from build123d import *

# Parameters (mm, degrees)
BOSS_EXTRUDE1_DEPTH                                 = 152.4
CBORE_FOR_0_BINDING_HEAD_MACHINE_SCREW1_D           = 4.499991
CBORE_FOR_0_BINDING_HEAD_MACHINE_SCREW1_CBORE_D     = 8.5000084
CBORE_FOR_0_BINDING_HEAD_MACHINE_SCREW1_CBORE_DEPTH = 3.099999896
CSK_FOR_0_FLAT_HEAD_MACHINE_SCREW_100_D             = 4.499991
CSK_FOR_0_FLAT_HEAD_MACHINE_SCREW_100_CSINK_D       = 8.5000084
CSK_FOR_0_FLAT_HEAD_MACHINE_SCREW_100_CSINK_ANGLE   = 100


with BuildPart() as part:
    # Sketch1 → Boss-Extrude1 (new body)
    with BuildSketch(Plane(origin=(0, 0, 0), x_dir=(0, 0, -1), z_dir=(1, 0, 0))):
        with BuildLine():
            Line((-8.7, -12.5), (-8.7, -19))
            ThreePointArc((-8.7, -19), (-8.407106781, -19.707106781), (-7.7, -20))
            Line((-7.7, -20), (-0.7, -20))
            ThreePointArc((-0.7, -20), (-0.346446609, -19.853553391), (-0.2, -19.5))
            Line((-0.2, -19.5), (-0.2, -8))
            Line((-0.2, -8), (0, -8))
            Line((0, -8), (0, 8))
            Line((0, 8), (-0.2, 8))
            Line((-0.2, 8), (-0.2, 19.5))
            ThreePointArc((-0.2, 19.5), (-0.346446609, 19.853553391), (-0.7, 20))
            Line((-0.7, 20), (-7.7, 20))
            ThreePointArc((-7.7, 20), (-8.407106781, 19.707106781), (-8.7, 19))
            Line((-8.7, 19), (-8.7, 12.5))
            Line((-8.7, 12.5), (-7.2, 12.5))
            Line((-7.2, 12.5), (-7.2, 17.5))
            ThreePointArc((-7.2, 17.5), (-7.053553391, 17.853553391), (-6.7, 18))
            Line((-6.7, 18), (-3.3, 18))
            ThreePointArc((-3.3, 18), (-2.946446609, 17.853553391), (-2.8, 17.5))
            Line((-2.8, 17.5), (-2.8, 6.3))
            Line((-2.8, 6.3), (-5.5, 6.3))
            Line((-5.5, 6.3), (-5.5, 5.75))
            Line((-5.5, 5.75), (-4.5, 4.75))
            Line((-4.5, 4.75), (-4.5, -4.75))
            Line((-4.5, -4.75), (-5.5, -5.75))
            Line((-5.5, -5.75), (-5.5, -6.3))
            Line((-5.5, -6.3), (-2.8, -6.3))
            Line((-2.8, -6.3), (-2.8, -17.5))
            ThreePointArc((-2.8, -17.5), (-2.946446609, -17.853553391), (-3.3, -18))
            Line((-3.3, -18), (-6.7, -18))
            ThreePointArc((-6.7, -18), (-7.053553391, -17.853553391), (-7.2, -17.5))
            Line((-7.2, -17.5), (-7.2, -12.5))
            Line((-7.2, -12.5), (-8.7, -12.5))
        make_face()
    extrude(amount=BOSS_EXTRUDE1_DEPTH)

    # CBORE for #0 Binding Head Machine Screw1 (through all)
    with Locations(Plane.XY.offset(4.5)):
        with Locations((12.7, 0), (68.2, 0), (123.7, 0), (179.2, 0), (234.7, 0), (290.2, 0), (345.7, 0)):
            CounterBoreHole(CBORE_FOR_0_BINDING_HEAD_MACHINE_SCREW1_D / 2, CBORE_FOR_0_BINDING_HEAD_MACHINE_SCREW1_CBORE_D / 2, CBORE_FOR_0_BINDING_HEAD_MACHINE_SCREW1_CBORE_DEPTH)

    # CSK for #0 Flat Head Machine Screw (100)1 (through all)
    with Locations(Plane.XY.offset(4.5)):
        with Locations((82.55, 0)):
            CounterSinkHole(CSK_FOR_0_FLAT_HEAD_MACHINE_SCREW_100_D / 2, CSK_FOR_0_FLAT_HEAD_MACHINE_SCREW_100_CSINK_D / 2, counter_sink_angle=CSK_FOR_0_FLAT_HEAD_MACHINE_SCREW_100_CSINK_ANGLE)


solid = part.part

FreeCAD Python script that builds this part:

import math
import FreeCAD as App
import Part
import Sketcher
from FreeCAD import Vector
Q = App.Units.Quantity

doc = App.newDocument("Part")
params = doc.addObject("Spreadsheet::Sheet", "Params")
for row, (alias, value) in enumerate([
    ("sketch1_radius", "1 mm"),
    ("sketch1_radius2", "0.5 mm"),
    ("sketch1_width", "16 mm"),
    ("sketch1_width2", "5 mm"),
    ("sketch1_height", "7 mm"),
    ("pad1_length", "152.4 mm"),
    ("hole_diameter", "4.499991 mm"),
    ("hole_cbore_diameter", "8.500008 mm"),
    ("hole_cbore_depth", "3.1 mm"),
    ("hole2_diameter", "4.499991 mm"),
    ("hole2_csink_diameter", "8.500008 mm"),
], start=1):
    params.set(f"A{row}", alias)
    params.set(f"B{row}", "=" + value)
    params.setAlias(f"B{row}", alias)

body = doc.addObject("PartDesign::Body", "Body")

sketch1 = body.newObject("Sketcher::SketchObject", "Sketch")
sketch1.AttachmentSupport = (doc.getObject("YZ_Plane"), [""])
sketch1.MapMode = "FlatFace"
sketch1.addGeometry([
    Part.LineSegment(Vector(-12.5, 8.7, 0), Vector(-19, 8.7, 0)),
    Part.ArcOfCircle(Part.Circle(Vector(-19, 7.7, 0), Vector(0, 0, 1), 1), math.radians(90), math.radians(180)),
    Part.LineSegment(Vector(-20, 7.7, 0), Vector(-20, 0.7, 0)),
    Part.ArcOfCircle(Part.Circle(Vector(-19.5, 0.7, 0), Vector(0, 0, 1), 0.5), math.radians(180), math.radians(270)),
    Part.LineSegment(Vector(-19.5, 0.2, 0), Vector(-8, 0.2, 0)),
    Part.LineSegment(Vector(-8, 0.2, 0), Vector(-8, 0, 0)),
    Part.LineSegment(Vector(-8, 0, 0), Vector(8, 0, 0)),
    Part.LineSegment(Vector(8, 0, 0), Vector(8, 0.2, 0)),
    Part.LineSegment(Vector(8, 0.2, 0), Vector(19.5, 0.2, 0)),
    Part.ArcOfCircle(Part.Circle(Vector(19.5, 0.7, 0), Vector(0, 0, 1), 0.5), math.radians(-90), math.radians(0)),
    Part.LineSegment(Vector(20, 0.7, 0), Vector(20, 7.7, 0)),
    Part.ArcOfCircle(Part.Circle(Vector(19, 7.7, 0), Vector(0, 0, 1), 1), math.radians(0), math.radians(90)),
    Part.LineSegment(Vector(19, 8.7, 0), Vector(12.5, 8.7, 0)),
    Part.LineSegment(Vector(12.5, 8.7, 0), Vector(12.5, 7.2, 0)),
    Part.LineSegment(Vector(12.5, 7.2, 0), Vector(17.5, 7.2, 0)),
    Part.ArcOfCircle(Part.Circle(Vector(17.5, 6.7, 0), Vector(0, 0, 1), 0.5), math.radians(0), math.radians(90)),
    Part.LineSegment(Vector(18, 6.7, 0), Vector(18, 3.3, 0)),
    Part.ArcOfCircle(Part.Circle(Vector(17.5, 3.3, 0), Vector(0, 0, 1), 0.5), math.radians(-90), math.radians(0)),
    Part.LineSegment(Vector(17.5, 2.8, 0), Vector(6.3, 2.8, 0)),
    Part.LineSegment(Vector(6.3, 2.8, 0), Vector(6.3, 5.5, 0)),
    Part.LineSegment(Vector(6.3, 5.5, 0), Vector(5.75, 5.5, 0)),
    Part.LineSegment(Vector(5.75, 5.5, 0), Vector(4.75, 4.5, 0)),
    Part.LineSegment(Vector(4.75, 4.5, 0), Vector(-4.75, 4.5, 0)),
    Part.LineSegment(Vector(-4.75, 4.5, 0), Vector(-5.75, 5.5, 0)),
    Part.LineSegment(Vector(-5.75, 5.5, 0), Vector(-6.3, 5.5, 0)),
    Part.LineSegment(Vector(-6.3, 5.5, 0), Vector(-6.3, 2.8, 0)),
    Part.LineSegment(Vector(-6.3, 2.8, 0), Vector(-17.5, 2.8, 0)),
    Part.ArcOfCircle(Part.Circle(Vector(-17.5, 3.3, 0), Vector(0, 0, 1), 0.5), math.radians(180), math.radians(270)),
    Part.LineSegment(Vector(-18, 3.3, 0), Vector(-18, 6.7, 0)),
    Part.ArcOfCircle(Part.Circle(Vector(-17.5, 6.7, 0), Vector(0, 0, 1), 0.5), math.radians(90), math.radians(180)),
    Part.LineSegment(Vector(-17.5, 7.2, 0), Vector(-12.5, 7.2, 0)),
    Part.LineSegment(Vector(-12.5, 7.2, 0), Vector(-12.5, 8.7, 0)),
], False)
sketch1.addConstraint([
    Sketcher.Constraint("Tangent", 0, 2, 1, 1),
    Sketcher.Constraint("Tangent", 1, 2, 2, 1),
    Sketcher.Constraint("Tangent", 2, 2, 3, 1),
    Sketcher.Constraint("Tangent", 3, 2, 4, 1),
    Sketcher.Constraint("Coincident", 4, 2, 5, 1),
    Sketcher.Constraint("Coincident", 5, 2, 6, 1),
    Sketcher.Constraint("Coincident", 6, 2, 7, 1),
    Sketcher.Constraint("Coincident", 7, 2, 8, 1),
    Sketcher.Constraint("Tangent", 8, 2, 9, 1),
    Sketcher.Constraint("Tangent", 9, 2, 10, 1),
    Sketcher.Constraint("Tangent", 10, 2, 11, 1),
    Sketcher.Constraint("Tangent", 11, 2, 12, 1),
    Sketcher.Constraint("Coincident", 12, 2, 13, 1),
    Sketcher.Constraint("Coincident", 13, 2, 14, 1),
    Sketcher.Constraint("Tangent", 14, 2, 15, 2),
    Sketcher.Constraint("Tangent", 15, 1, 16, 1),
    Sketcher.Constraint("Tangent", 16, 2, 17, 2),
    Sketcher.Constraint("Tangent", 17, 1, 18, 1),
    Sketcher.Constraint("Coincident", 18, 2, 19, 1),
    Sketcher.Constraint("Coincident", 19, 2, 20, 1),
    Sketcher.Constraint("Coincident", 20, 2, 21, 1),
    Sketcher.Constraint("Coincident", 21, 2, 22, 1),
    Sketcher.Constraint("Coincident", 22, 2, 23, 1),
    Sketcher.Constraint("Coincident", 23, 2, 24, 1),
    Sketcher.Constraint("Coincident", 24, 2, 25, 1),
    Sketcher.Constraint("Coincident", 25, 2, 26, 1),
    Sketcher.Constraint("Tangent", 26, 2, 27, 2),
    Sketcher.Constraint("Tangent", 27, 1, 28, 1),
    Sketcher.Constraint("Tangent", 28, 2, 29, 2),
    Sketcher.Constraint("Tangent", 29, 1, 30, 1),
    Sketcher.Constraint("Coincident", 30, 2, 31, 1),
    Sketcher.Constraint("Coincident", 31, 2, 0, 1),
    Sketcher.Constraint("Horizontal", 0),
    Sketcher.Constraint("Vertical", 2),
    Sketcher.Constraint("Horizontal", 4),
    Sketcher.Constraint("Vertical", 5),
    Sketcher.Constraint("Horizontal", 6),
    Sketcher.Constraint("Vertical", 7),
    Sketcher.Constraint("Horizontal", 8),
    Sketcher.Constraint("Vertical", 10),
    Sketcher.Constraint("Horizontal", 12),
    Sketcher.Constraint("Vertical", 13),
    Sketcher.Constraint("Horizontal", 14),
    Sketcher.Constraint("Vertical", 16),
    Sketcher.Constraint("Horizontal", 18),
    Sketcher.Constraint("Vertical", 19),
    Sketcher.Constraint("Horizontal", 20),
    Sketcher.Constraint("Horizontal", 22),
    Sketcher.Constraint("Horizontal", 24),
    Sketcher.Constraint("Vertical", 25),
    Sketcher.Constraint("Horizontal", 26),
    Sketcher.Constraint("Vertical", 28),
    Sketcher.Constraint("Horizontal", 30),
    Sketcher.Constraint("Vertical", 31),
    Sketcher.Constraint("Equal", 3, 9),
    Sketcher.Constraint("Equal", 1, 11),
    Sketcher.Constraint("Equal", 9, 15),
    Sketcher.Constraint("Equal", 15, 17),
    Sketcher.Constraint("Equal", 17, 27),
    Sketcher.Constraint("Equal", 27, 29),
    Sketcher.Constraint("Symmetric", 5, 2, 6, 2, -1, 1),
    Sketcher.Constraint("Symmetric", 3, 3, 9, 3, -2),
    Sketcher.Constraint("Symmetric", 17, 3, 27, 3, -2),
    Sketcher.Constraint("Symmetric", 20, 2, 23, 2, -2),
    Sketcher.Constraint("Symmetric", 13, 2, 30, 2, -2),
    Sketcher.Constraint("Perpendicular", 21, 23),
    Sketcher.Constraint("Horizontal", 1, 3, 11, 3),
    Sketcher.Constraint("Equal", 20, 24),
    Sketcher.Constraint("Equal", 21, 23),
    Sketcher.Constraint("Radius", 1, Q("1 mm")),
    Sketcher.Constraint("Radius", 3, Q("0.5 mm")),
    Sketcher.Constraint("DistanceX", 6, 1, 6, 2, Q("16 mm")),
    Sketcher.Constraint("DistanceX", 14, 1, 14, 2, Q("5 mm")),
    Sketcher.Constraint("DistanceY", 2, 2, 2, 1, Q("7 mm")),
    Sketcher.Constraint("DistanceX", 0, 2, 0, 1, Q("6.5 mm")),
    Sketcher.Constraint("DistanceX", 4, 1, 4, 2, Q("11.5 mm")),
    Sketcher.Constraint("DistanceX", 18, 2, 18, 1, Q("11.2 mm")),
    Sketcher.Constraint("DistanceX", 22, 2, 22, 1, Q("9.5 mm")),
    Sketcher.Constraint("DistanceY", 5, 2, 5, 1, Q("0.2 mm")),
    Sketcher.Constraint("DistanceY", 13, 2, 13, 1, Q("1.5 mm")),
    Sketcher.Constraint("DistanceY", 16, 2, 16, 1, Q("3.4 mm")),
    Sketcher.Constraint("DistanceY", 19, 1, 19, 2, Q("2.7 mm")),
    Sketcher.Constraint("DistanceX", 21, 2, 20, 2, Q("1 mm")),
])
sketch1.setExpression("Constraints[69]", "Params.sketch1_radius")
sketch1.setExpression("Constraints[70]", "Params.sketch1_radius2")
sketch1.setExpression("Constraints[71]", "Params.sketch1_width")
sketch1.setExpression("Constraints[72]", "Params.sketch1_width2")
sketch1.setExpression("Constraints[73]", "Params.sketch1_height")
pad1 = body.newObject("PartDesign::Pad", "Pad")
pad1.Profile = sketch1
pad1.setExpression("Length", "Params.pad1_length")

sketch2 = body.newObject("Sketcher::SketchObject", "Sketch001")
sketch2.AttachmentSupport = (doc.getObject("XY_Plane"), [""])
sketch2.MapMode = "FlatFace"
sketch2.AttachmentOffset = App.Placement(Vector(0, 0, 4.5), App.Rotation())
sketch2.addGeometry([
    Part.Circle(Vector(12.7, 0, 0), Vector(0, 0, 1), 2.2),
    Part.Circle(Vector(68.2, 0, 0), Vector(0, 0, 1), 2.2),
    Part.Circle(Vector(123.7, 0, 0), Vector(0, 0, 1), 2.2),
    Part.Circle(Vector(179.2, 0, 0), Vector(0, 0, 1), 2.2),
    Part.Circle(Vector(234.7, 0, 0), Vector(0, 0, 1), 2.2),
    Part.Circle(Vector(290.2, 0, 0), Vector(0, 0, 1), 2.2),
    Part.Circle(Vector(345.7, 0, 0), Vector(0, 0, 1), 2.2),
], False)
sketch2.addConstraint([
    Sketcher.Constraint("Equal", 0, 1),
    Sketcher.Constraint("Equal", 1, 2),
    Sketcher.Constraint("Equal", 2, 3),
    Sketcher.Constraint("Equal", 3, 4),
    Sketcher.Constraint("Equal", 4, 5),
    Sketcher.Constraint("Equal", 5, 6),
    Sketcher.Constraint("PointOnObject", 0, 3, -1),
    Sketcher.Constraint("PointOnObject", 1, 3, -1),
    Sketcher.Constraint("PointOnObject", 2, 3, -1),
    Sketcher.Constraint("PointOnObject", 3, 3, -1),
    Sketcher.Constraint("PointOnObject", 4, 3, -1),
    Sketcher.Constraint("PointOnObject", 5, 3, -1),
    Sketcher.Constraint("PointOnObject", 6, 3, -1),
    Sketcher.Constraint("DistanceX", 0, 3, 2, 3, Q("111 mm")),
    Sketcher.Constraint("DistanceX", 1, 3, 3, 3, Q("111 mm")),
    Sketcher.Constraint("DistanceX", 2, 3, 4, 3, Q("111 mm")),
    Sketcher.Constraint("DistanceX", 3, 3, 5, 3, Q("111 mm")),
    Sketcher.Constraint("DistanceX", 4, 3, 6, 3, Q("111 mm")),
    Sketcher.Constraint("DistanceX", -1, 1, 0, 3, Q("12.7 mm")),
    Sketcher.Constraint("DistanceX", -1, 1, 1, 3, Q("68.2 mm")),
    Sketcher.Constraint("Diameter", 0, Q("4.499991 mm")),
])
doc.recompute()
hole = body.newObject("PartDesign::Hole", "Hole")
hole.Profile = sketch2
hole.ThreadType = "None"
hole.setExpression("Diameter", "Params.hole_diameter")
hole.DepthType = "ThroughAll"
hole.HoleCutType = "Counterbore"
hole.setExpression("HoleCutDiameter", "Params.hole_cbore_diameter")
hole.setExpression("HoleCutDepth", "Params.hole_cbore_depth")

sketch3 = body.newObject("Sketcher::SketchObject", "Sketch002")
sketch3.AttachmentSupport = (doc.getObject("XY_Plane"), [""])
sketch3.MapMode = "FlatFace"
sketch3.AttachmentOffset = App.Placement(Vector(0, 0, 4.5), App.Rotation())
sketch3.addGeometry(Part.Circle(Vector(82.5, 0, 0), Vector(0, 0, 1), 2.2), False)
sketch3.addConstraint([
    Sketcher.Constraint("PointOnObject", 0, 3, -1),
    Sketcher.Constraint("Diameter", 0, Q("4.499991 mm")),
    Sketcher.Constraint("DistanceX", -1, 1, 0, 3, Q("82.55 mm")),
])
doc.recompute()
hole2 = body.newObject("PartDesign::Hole", "Hole001")
hole2.Profile = sketch3
hole2.ThreadType = "None"
hole2.setExpression("Diameter", "Params.hole2_diameter")
hole2.DepthType = "ThroughAll"
hole2.HoleCutType = "Countersink"
hole2.setExpression("HoleCutDiameter", "Params.hole2_csink_diameter")
hole2.HoleCutCountersinkAngle = 100

doc.recompute()
